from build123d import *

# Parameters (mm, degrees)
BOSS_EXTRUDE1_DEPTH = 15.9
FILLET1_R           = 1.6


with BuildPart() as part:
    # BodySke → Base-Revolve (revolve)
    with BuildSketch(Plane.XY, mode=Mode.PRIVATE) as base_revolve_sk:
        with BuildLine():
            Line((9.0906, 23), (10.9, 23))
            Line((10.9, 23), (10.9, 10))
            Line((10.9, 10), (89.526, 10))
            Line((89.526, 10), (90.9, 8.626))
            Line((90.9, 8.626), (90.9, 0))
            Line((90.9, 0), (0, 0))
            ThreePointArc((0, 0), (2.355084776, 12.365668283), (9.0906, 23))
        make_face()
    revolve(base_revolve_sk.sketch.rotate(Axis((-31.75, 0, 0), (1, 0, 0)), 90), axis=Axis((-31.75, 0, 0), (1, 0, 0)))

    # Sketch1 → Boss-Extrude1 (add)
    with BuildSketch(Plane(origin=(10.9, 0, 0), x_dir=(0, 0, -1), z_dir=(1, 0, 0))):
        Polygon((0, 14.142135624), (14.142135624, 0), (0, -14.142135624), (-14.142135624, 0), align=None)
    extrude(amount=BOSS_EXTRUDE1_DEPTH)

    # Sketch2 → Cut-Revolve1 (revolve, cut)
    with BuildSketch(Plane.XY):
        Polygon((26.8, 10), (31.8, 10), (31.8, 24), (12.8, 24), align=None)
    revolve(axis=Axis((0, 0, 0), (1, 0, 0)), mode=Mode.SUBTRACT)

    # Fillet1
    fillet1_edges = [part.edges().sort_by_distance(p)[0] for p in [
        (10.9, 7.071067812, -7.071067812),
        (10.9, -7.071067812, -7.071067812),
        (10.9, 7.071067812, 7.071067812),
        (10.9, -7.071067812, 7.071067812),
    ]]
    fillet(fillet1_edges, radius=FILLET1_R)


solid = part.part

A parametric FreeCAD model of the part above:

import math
import FreeCAD as App
import Part
import Sketcher

V = App.Vector
Q = App.Units.Quantity


def edges_at(feature, points):
    """Names of the edges that pass closest to the given points."""
    edges = feature.Shape.Edges
    near = lambda p: min(range(len(edges)), key=lambda i: edges[i].distToShape(Part.Vertex(*p))[0])
    return sorted({f"Edge{near(p) + 1}" for p in points})

doc = App.newDocument("Part")
body = doc.addObject("PartDesign::Body", "Body")

sketch1 = body.newObject("Sketcher::SketchObject", "Sketch")
sketch1.AttachmentSupport = (doc.getObject("XY_Plane"), [""])
sketch1.MapMode = "FlatFace"
sketch1.addGeometry([
    Part.LineSegment(V(10.9, 23, 0), V(9.1, 23, 0)),
    Part.ArcOfCircle(Part.Circle(V(33.6, 0, 0), V(0, 0, 1), 33.6), math.radians(137), math.radians(180)),
    Part.LineSegment(V(0, 0, 0), V(90.9, 0, 0)),
    Part.LineSegment(V(90.9, 0, 0), V(90.9, 8.6, 0)),
    Part.LineSegment(V(90.9, 8.6, 0), V(89.5, 10, 0)),
    Part.LineSegment(V(89.5, 10, 0), V(10.9, 10, 0)),
    Part.LineSegment(V(10.9, 10, 0), V(10.9, 23, 0)),
], False)
sketch1.addConstraint([
    Sketcher.Constraint("Coincident", 0, 2, 1, 1),
    Sketcher.Constraint("Coincident", 1, 2, 2, 1),
    Sketcher.Constraint("Coincident", 2, 2, 3, 1),
    Sketcher.Constraint("Coincident", 3, 2, 4, 1),
    Sketcher.Constraint("Coincident", 4, 2, 5, 1),
    Sketcher.Constraint("Coincident", 5, 2, 6, 1),
    Sketcher.Constraint("Coincident", 6, 2, 0, 1),
    Sketcher.Constraint("Horizontal", 0),
    Sketcher.Constraint("Horizontal", 2),
    Sketcher.Constraint("Vertical", 3),
    Sketcher.Constraint("Horizontal", 5),
    Sketcher.Constraint("Vertical", 6),
    Sketcher.Constraint("Coincident", 1, 2, -1, 1),
    Sketcher.Constraint("PointOnObject", 1, 3, -1),
    Sketcher.Constraint("DistanceY", 6, 1, 6, 2, 13.0),
    Sketcher.Constraint("Angle", 4, Q("135 deg")),
    Sketcher.Constraint("DistanceX", 2, 1, 2, 2, 90.9),
    Sketcher.Constraint("DistanceY", -1, 1, 0, 2, 23.0),
    Sketcher.Constraint("DistanceX", 5, 2, 3, 2, 80.0),
    Sketcher.Constraint("DistanceX", 5, 2, 5, 1, 78.626),
    Sketcher.Constraint("Radius", 1, 33.641289),
])
revolution = body.newObject("PartDesign::Revolution", "Revolution")
revolution.Profile = sketch1
revolution.ReferenceAxis = (sketch1, ["H_Axis"])
revolution.Angle = 360

sketch2 = body.newObject("Sketcher::SketchObject", "Sketch001")
sketch2.AttachmentSupport = (doc.getObject("YZ_Plane"), [""])
sketch2.MapMode = "FlatFace"
sketch2.AttachmentOffset = App.Placement(V(0, 0, 10.9), App.Rotation())
sketch2.addGeometry([
    Part.LineSegment(V(0, -14, 0), V(14, 0, 0)),
    Part.LineSegment(V(14, 0, 0), V(0, 14, 0)),
    Part.LineSegment(V(0, 14, 0), V(-14, 0, 0)),
    Part.LineSegment(V(-14, 0, 0), V(0, -14, 0)),
], False)
sketch2.addConstraint([
    Sketcher.Constraint("Coincident", 0, 2, 1, 1),
    Sketcher.Constraint("Coincident", 1, 2, 2, 1),
    Sketcher.Constraint("Coincident", 2, 2, 3, 1),
    Sketcher.Constraint("Coincident", 3, 2, 0, 1),
    Sketcher.Constraint("Symmetric", 0, 2, 2, 2, -1, 1),
    Sketcher.Constraint("Symmetric", 1, 2, 3, 2, -1, 1),
    Sketcher.Constraint("PointOnObject", 0, 2, -1),
    Sketcher.Constraint("PointOnObject", 1, 2, -2),
    Sketcher.Constraint("Perpendicular", 0, 1),
    Sketcher.Constraint("Distance", 0, 20.0),
])
pad1 = body.newObject("PartDesign::Pad", "Pad")
pad1.Profile = sketch2
pad1.Length = 15.9

sketch3 = body.newObject("Sketcher::SketchObject", "Sketch002")
sketch3.AttachmentSupport = (doc.getObject("XY_Plane"), [""])
sketch3.MapMode = "FlatFace"
sketch3.addGeometry([
    Part.LineSegment(V(27, 10, 0), V(32, 10, 0)),
    Part.LineSegment(V(32, 10, 0), V(32, 24, 0)),
    Part.LineSegment(V(32, 24, 0), V(13, 24, 0)),
    Part.LineSegment(V(13, 24, 0), V(27, 10, 0)),
], False)
sketch3.addConstraint([
    Sketcher.Constraint("Coincident", 0, 2, 1, 1),
    Sketcher.Constraint("Coincident", 1, 2, 2, 1),
    Sketcher.Constraint("Coincident", 2, 2, 3, 1),
    Sketcher.Constraint("Coincident", 3, 2, 0, 1),
    Sketcher.Constraint("Horizontal", 0),
    Sketcher.Constraint("Vertical", 1),
    Sketcher.Constraint("Horizontal", 2),
    Sketcher.Constraint("DistanceX", 0, 1, 0, 2, 5.0),
    Sketcher.Constraint("DistanceX", 2, 2, 2, 1, 19.0),
    Sketcher.Constraint("DistanceY", 1, 1, 1, 2, 14.0),
    Sketcher.Constraint("DistanceY", -1, 1, 0, 2, 10.0),
    Sketcher.Constraint("DistanceX", -1, 1, 0, 2, 31.8),
])
groove = body.newObject("PartDesign::Groove", "Groove")
groove.Profile = sketch3
groove.ReferenceAxis = (sketch3, ["H_Axis"])
groove.Angle = 360
doc.recompute()

fillet = body.newObject("PartDesign::Fillet", "Fillet")
fillet.Base = (groove, edges_at(groove, [
    (10.9, 7.071, -7.071),
    (10.9, -7.071, -7.071),
    (10.9, 7.071, 7.071),
    (10.9, -7.071, 7.071),
]))
fillet.Radius = 1.6

doc.recompute()
